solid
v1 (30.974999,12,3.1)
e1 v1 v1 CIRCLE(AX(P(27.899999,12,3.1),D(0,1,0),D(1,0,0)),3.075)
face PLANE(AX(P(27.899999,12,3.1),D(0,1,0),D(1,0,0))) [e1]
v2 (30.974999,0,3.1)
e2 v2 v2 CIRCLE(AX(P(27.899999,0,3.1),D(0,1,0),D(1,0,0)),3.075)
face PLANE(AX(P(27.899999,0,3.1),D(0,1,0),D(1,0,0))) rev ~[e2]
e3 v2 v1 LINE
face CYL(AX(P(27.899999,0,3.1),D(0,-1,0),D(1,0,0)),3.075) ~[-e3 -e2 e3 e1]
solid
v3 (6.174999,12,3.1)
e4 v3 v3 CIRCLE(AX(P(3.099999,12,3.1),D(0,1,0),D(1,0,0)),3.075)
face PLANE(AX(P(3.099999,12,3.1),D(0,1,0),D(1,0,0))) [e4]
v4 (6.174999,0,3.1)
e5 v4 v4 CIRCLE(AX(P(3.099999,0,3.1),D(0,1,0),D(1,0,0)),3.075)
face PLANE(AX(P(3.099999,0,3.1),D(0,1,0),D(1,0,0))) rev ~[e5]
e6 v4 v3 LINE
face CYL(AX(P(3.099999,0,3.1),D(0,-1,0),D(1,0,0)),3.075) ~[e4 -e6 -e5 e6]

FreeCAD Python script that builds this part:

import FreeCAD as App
import Part
import Sketcher

V = App.Vector

doc = App.newDocument("Part")
body = doc.addObject("PartDesign::Body", "Body")

# Sketch on XZ plane
sketch1 = body.newObject("Sketcher::SketchObject", "Sketch")
sketch1.AttachmentSupport = (doc.getObject("XZ_Plane"), [""])
sketch1.MapMode = "FlatFace"
sketch1.addGeometry(Part.Circle(V(3.099999, 3.1, 0), V(0, 0, 1), 3.075), False)
sketch1.addConstraint(Sketcher.Constraint("Diameter", 0, 6.15))
sketch1.addConstraint(Sketcher.Constraint("DistanceX", -1, 1, 0, 3, 3.099999))
sketch1.addConstraint(Sketcher.Constraint("DistanceY", -1, 1, 0, 3, 3.1))
pad1 = body.newObject("PartDesign::Pad", "Pad")
pad1.Profile = sketch1
pad1.Length = 12
pad1.Reversed = True
body2 = doc.addObject("PartDesign::Body", "Body001")

# Sketch on XZ plane
sketch2 = body2.newObject("Sketcher::SketchObject", "Sketch001")
sketch2.AttachmentSupport = (doc.getObject("XZ_Plane001"), [""])
sketch2.MapMode = "FlatFace"
sketch2.addGeometry(Part.Circle(V(27.899999, 3.1, 0), V(0, 0, 1), 3.075), False)
sketch2.addConstraint(Sketcher.Constraint("Diameter", 0, 6.15))
sketch2.addConstraint(Sketcher.Constraint("DistanceX", -1, 1, 0, 3, 27.899999))
sketch2.addConstraint(Sketcher.Constraint("DistanceY", -1, 1, 0, 3, 3.1))
pad2 = body2.newObject("PartDesign::Pad", "Pad001")
pad2.Profile = sketch2
pad2.Length = 12
pad2.Reversed = True

doc.recompute()
